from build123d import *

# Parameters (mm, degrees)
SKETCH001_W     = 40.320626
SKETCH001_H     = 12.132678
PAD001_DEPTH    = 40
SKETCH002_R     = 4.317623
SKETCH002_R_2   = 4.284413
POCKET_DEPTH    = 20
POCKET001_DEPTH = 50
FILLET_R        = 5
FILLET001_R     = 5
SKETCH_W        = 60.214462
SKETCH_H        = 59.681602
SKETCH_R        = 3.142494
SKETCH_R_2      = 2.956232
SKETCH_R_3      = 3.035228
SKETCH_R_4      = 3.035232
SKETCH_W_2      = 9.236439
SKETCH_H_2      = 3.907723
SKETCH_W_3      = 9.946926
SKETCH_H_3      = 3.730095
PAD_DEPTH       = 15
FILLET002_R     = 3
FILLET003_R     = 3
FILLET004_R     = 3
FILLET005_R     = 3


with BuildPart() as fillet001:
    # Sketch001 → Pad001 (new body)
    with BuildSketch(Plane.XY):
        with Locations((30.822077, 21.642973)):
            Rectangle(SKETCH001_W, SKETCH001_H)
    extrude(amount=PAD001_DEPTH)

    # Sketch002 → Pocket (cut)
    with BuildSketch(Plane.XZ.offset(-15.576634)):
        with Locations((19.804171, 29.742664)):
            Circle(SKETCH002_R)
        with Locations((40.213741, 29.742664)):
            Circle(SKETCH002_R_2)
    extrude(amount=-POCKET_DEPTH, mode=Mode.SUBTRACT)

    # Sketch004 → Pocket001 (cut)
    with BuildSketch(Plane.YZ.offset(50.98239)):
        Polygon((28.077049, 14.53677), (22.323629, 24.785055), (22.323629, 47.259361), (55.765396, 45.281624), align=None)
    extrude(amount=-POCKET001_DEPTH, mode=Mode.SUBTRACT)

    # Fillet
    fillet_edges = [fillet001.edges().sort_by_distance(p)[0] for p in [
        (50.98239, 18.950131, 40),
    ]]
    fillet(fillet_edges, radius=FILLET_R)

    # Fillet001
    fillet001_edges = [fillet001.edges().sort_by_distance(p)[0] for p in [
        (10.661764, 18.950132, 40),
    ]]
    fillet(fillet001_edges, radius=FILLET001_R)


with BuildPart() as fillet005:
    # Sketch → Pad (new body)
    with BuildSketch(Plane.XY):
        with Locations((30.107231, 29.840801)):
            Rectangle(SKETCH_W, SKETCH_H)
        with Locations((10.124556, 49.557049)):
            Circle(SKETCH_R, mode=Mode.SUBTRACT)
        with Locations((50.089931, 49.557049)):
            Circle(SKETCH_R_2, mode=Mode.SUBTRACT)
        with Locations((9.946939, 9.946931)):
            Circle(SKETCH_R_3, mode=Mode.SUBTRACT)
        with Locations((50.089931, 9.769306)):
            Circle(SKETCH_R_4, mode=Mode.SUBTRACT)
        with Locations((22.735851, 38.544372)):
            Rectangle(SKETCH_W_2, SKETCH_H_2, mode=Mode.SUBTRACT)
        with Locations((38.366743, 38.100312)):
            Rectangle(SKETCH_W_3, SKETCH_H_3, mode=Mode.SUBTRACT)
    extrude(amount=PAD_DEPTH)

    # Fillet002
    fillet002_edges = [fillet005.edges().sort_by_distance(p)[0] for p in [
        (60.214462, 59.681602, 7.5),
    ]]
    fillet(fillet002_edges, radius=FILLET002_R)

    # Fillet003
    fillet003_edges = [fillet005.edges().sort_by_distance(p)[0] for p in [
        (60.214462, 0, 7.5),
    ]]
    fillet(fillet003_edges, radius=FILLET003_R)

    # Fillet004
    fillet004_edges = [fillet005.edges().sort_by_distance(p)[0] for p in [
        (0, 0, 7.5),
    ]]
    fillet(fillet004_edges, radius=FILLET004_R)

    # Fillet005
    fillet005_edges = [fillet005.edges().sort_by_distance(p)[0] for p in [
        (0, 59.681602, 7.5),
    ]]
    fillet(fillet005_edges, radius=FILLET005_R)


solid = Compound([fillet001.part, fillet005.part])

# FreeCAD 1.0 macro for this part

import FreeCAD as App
import Part
import Sketcher
from FreeCAD import Vector
Q = App.Units.Quantity


def edges_at(feature, points):
    """Names of the edges that pass closest to the given points."""
    edges = feature.Shape.Edges
    near = lambda p: min(range(len(edges)), key=lambda i: edges[i].distToShape(Part.Vertex(*p))[0])
    return sorted({f"Edge{near(p) + 1}" for p in points})


def add_polygon(sketch, points):
    """Adds a closed chain of lines whose ends are joined by coincident constraints."""
    first, n = sketch.GeometryCount, len(points)
    for a, b in zip(points, points[1:] + points[:1]):
        sketch.addGeometry(Part.LineSegment(App.Vector(*a, 0), App.Vector(*b, 0)), False)
    for i in range(n):
        sketch.addConstraint(Sketcher.Constraint("Coincident", first + i, 2, first + (i + 1) % n, 1))

doc = App.newDocument("Part")
params = doc.addObject("Spreadsheet::Sheet", "Params")
for row, (alias, value) in enumerate([
    ("pad1_length", "40 mm"),
    ("pocket1_length", "20 mm"),
    ("pocket2_length", "50 mm"),
    ("fillet_radius", "5 mm"),
    ("fillet2_radius", "5 mm"),
    ("pad2_length", "15 mm"),
    ("fillet3_radius", "3 mm"),
    ("fillet4_radius", "3 mm"),
    ("fillet5_radius", "3 mm"),
    ("fillet6_radius", "3 mm"),
], start=1):
    params.set(f"A{row}", alias)
    params.set(f"B{row}", "=" + value)
    params.setAlias(f"B{row}", alias)

body = doc.addObject("PartDesign::Body", "Body")

# Sketch on XY plane
sketch1 = doc.addObject("Sketcher::SketchObject", "Sketch")
body.addObject(sketch1)
sketch1.AttachmentSupport = (doc.XY_Plane, [""])
sketch1.MapMode = "FlatFace"
add_polygon(sketch1, [(11, 28), (11, 16), (51, 16), (51, 28)])  # lines 0-3
sketch1.addConstraint([
    Sketcher.Constraint("Vertical", 0),
    Sketcher.Constraint("Horizontal", 1),
    Sketcher.Constraint("Vertical", 2),
    Sketcher.Constraint("Horizontal", 3),
    Sketcher.Constraint("DistanceX", 1, 1, 1, 2, Q("40.320626 mm")),
    Sketcher.Constraint("DistanceY", 0, 2, 0, 1, Q("12.132678 mm")),
    Sketcher.Constraint("DistanceX", -1, 1, 1, 2, Q("50.98239 mm")),
    Sketcher.Constraint("DistanceY", -1, 1, 0, 2, Q("15.576634 mm")),
])
pad1 = doc.addObject("PartDesign::Pad", "Pad")
body.addObject(pad1)
pad1.Profile = sketch1
pad1.setExpression("Length", "Params.pad1_length")

# Sketch on XZ plane
sketch2 = doc.addObject("Sketcher::SketchObject", "Sketch001")
body.addObject(sketch2)
sketch2.AttachmentSupport = (doc.XZ_Plane, [""])
sketch2.MapMode = "FlatFace"
sketch2.AttachmentOffset = App.Placement(Vector(0, 0, -15.576634), App.Rotation())
sketch2.addGeometry([
    Part.Circle(Vector(19.8, 29.7, 0), Vector(0, 0, 1), 4.3),
    Part.Circle(Vector(40.2, 29.7, 0), Vector(0, 0, 1), 4.3),
], False)
sketch2.addConstraint([
    Sketcher.Constraint("Horizontal", 0, 3, 1, 3),
    Sketcher.Constraint("Diameter", 0, Q("8.635246 mm")),
    Sketcher.Constraint("Diameter", 1, Q("8.568826 mm")),
    Sketcher.Constraint("DistanceX", -1, 1, 0, 3, Q("19.804171 mm")),
    Sketcher.Constraint("DistanceX", -1, 1, 1, 3, Q("40.213741 mm")),
    Sketcher.Constraint("DistanceY", -1, 1, 0, 3, Q("29.742664 mm")),
])
pocket1 = doc.addObject("PartDesign::Pocket", "Pocket")
body.addObject(pocket1)
pocket1.Profile = sketch2
pocket1.setExpression("Length", "Params.pocket1_length")

# Sketch on YZ plane
sketch3 = doc.addObject("Sketcher::SketchObject", "Sketch002")
body.addObject(sketch3)
sketch3.AttachmentSupport = (doc.YZ_Plane, [""])
sketch3.MapMode = "FlatFace"
sketch3.AttachmentOffset = App.Placement(Vector(0, 0, 50.98239), App.Rotation())
add_polygon(sketch3, [(22, 25), (28, 15), (56, 45), (22, 47)])  # lines 0-3
sketch3.addConstraint([
    Sketcher.Constraint("Vertical", 3),
    Sketcher.Constraint("Angle", 0, Q("-60.690006 deg")),
    Sketcher.Constraint("Distance", 1, Q("41.375 mm")),
    Sketcher.Constraint("DistanceY", 3, 2, 3, 1, Q("22.474306 mm")),
    Sketcher.Constraint("DistanceX", -1, 1, 0, 2, Q("28.077049 mm")),
    Sketcher.Constraint("DistanceY", -1, 1, 0, 2, Q("14.53677 mm")),
    Sketcher.Constraint("DistanceX", -1, 1, 2, 2, Q("22.323629 mm")),
    Sketcher.Constraint("DistanceY", 3, 2, 1, 2, Q("20.496569 mm")),
])
pocket2 = doc.addObject("PartDesign::Pocket", "Pocket001")
body.addObject(pocket2)
pocket2.Profile = sketch3
pocket2.setExpression("Length", "Params.pocket2_length")
doc.recompute()

fillet = doc.addObject("PartDesign::Fillet", "Fillet")
body.addObject(fillet)
fillet.Base = (pocket2, edges_at(pocket2, [(50.982, 18.95, 40)]))
fillet.setExpression("Radius", "Params.fillet_radius")
doc.recompute()

fillet2 = doc.addObject("PartDesign::Fillet", "Fillet001")
body.addObject(fillet2)
fillet2.Base = (fillet, edges_at(fillet, [(10.662, 18.95, 40)]))
fillet2.setExpression("Radius", "Params.fillet2_radius")
body2 = doc.addObject("PartDesign::Body", "Body001")

# Sketch on XY plane
sketch4 = doc.addObject("Sketcher::SketchObject", "Sketch003")
body2.addObject(sketch4)
sketch4.AttachmentSupport = (doc.getObject("XY_Plane001"), [""])
sketch4.MapMode = "FlatFace"
add_polygon(sketch4, [(0, 59.7), (0, 0), (60.2, 0), (60.2, 59.7)])  # lines 0-3
sketch4.addGeometry(Part.Circle(Vector(9.9, 9.9, 0), Vector(0, 0, 1), 3), False)  # 4
sketch4.addGeometry(Part.Circle(Vector(50.1, 9.8, 0), Vector(0, 0, 1), 3), False)  # 5
add_polygon(sketch4, [(27.4, 36.6), (18.1, 36.6), (18.1, 40.5), (27.4, 40.5)])  # lines 6-9
sketch4.addGeometry(Part.Circle(Vector(10.1, 49.6, 0), Vector(0, 0, 1), 3.1), False)  # 10
add_polygon(sketch4, [(43.3, 36.2), (33.4, 36.2), (33.4, 40), (43.3, 40)])  # lines 11-14
sketch4.addGeometry(Part.Circle(Vector(50.1, 49.6, 0), Vector(0, 0, 1), 3), False)  # 15
sketch4.addConstraint([
    Sketcher.Constraint("Vertical", 0),
    Sketcher.Constraint("Horizontal", 1),
    Sketcher.Constraint("Vertical", 2),
    Sketcher.Constraint("Horizontal", 3),
    Sketcher.Constraint("Horizontal", 6),
    Sketcher.Constraint("Vertical", 7),
    Sketcher.Constraint("Horizontal", 8),
    Sketcher.Constraint("Vertical", 9),
    Sketcher.Constraint("Horizontal", 11),
    Sketcher.Constraint("Vertical", 12),
    Sketcher.Constraint("Horizontal", 13),
    Sketcher.Constraint("Vertical", 14),
    Sketcher.Constraint("Coincident", 0, 2, -1, 1),
    Sketcher.Constraint("Horizontal", 10, 3, 15, 3),
    Sketcher.Constraint("Vertical", 5, 3, 15, 3),
    Sketcher.Constraint("Diameter", 10, Q("6.284988 mm")),
    Sketcher.Constraint("Diameter", 4, Q("6.070456 mm")),
    Sketcher.Constraint("Diameter", 5, Q("6.070464 mm")),
    Sketcher.Constraint("Diameter", 15, Q("5.912464 mm")),
    Sketcher.Constraint("DistanceY", 0, 2, 0, 1, Q("59.681602 mm")),
    Sketcher.Constraint("DistanceX", 1, 1, 1, 2, Q("60.214462 mm")),
    Sketcher.Constraint("DistanceX", 6, 2, 6, 1, Q("9.236439 mm")),
    Sketcher.Constraint("DistanceX", 6, 2, 15, 3, Q("31.972299 mm")),
    Sketcher.Constraint("DistanceX", 11, 2, 11, 1, Q("9.946926 mm")),
    Sketcher.Constraint("DistanceY", 7, 1, 7, 2, Q("3.907723 mm")),
    Sketcher.Constraint("DistanceY", 12, 1, 12, 2, Q("3.730095 mm")),
    Sketcher.Constraint("DistanceX", -1, 1, 4, 3, Q("9.946939 mm")),
    Sketcher.Constraint("DistanceY", -1, 1, 4, 3, Q("9.946931 mm")),
    Sketcher.Constraint("DistanceX", -1, 1, 5, 3, Q("50.089931 mm")),
    Sketcher.Constraint("DistanceY", -1, 1, 10, 3, Q("49.557049 mm")),
    Sketcher.Constraint("DistanceY", -1, 1, 6, 2, Q("36.590511 mm")),
    Sketcher.Constraint("DistanceX", -1, 1, 11, 2, Q("33.39328 mm")),
    Sketcher.Constraint("DistanceY", -1, 1, 12, 2, Q("39.965359 mm")),
    Sketcher.Constraint("DistanceY", -1, 1, 5, 3, Q("9.769306 mm")),
    Sketcher.Constraint("DistanceX", -1, 1, 10, 3, Q("10.124556 mm")),
])
pad2 = doc.addObject("PartDesign::Pad", "Pad001")
body2.addObject(pad2)
pad2.Profile = sketch4
pad2.setExpression("Length", "Params.pad2_length")
doc.recompute()

fillet3 = doc.addObject("PartDesign::Fillet", "Fillet002")
body2.addObject(fillet3)
fillet3.Base = (pad2, edges_at(pad2, [(60.214, 59.682, 7.5)]))
fillet3.setExpression("Radius", "Params.fillet3_radius")
doc.recompute()

fillet4 = doc.addObject("PartDesign::Fillet", "Fillet003")
body2.addObject(fillet4)
fillet4.Base = (fillet3, edges_at(fillet3, [(60.214, 0, 7.5)]))
fillet4.setExpression("Radius", "Params.fillet4_radius")
doc.recompute()

fillet5 = doc.addObject("PartDesign::Fillet", "Fillet004")
body2.addObject(fillet5)
fillet5.Base = (fillet4, edges_at(fillet4, [(0, 0, 7.5)]))
fillet5.setExpression("Radius", "Params.fillet5_radius")
doc.recompute()

fillet6 = doc.addObject("PartDesign::Fillet", "Fillet005")
body2.addObject(fillet6)
fillet6.Base = (fillet5, edges_at(fillet5, [(0, 59.682, 7.5)]))
fillet6.setExpression("Radius", "Params.fillet6_radius")

doc.recompute()
